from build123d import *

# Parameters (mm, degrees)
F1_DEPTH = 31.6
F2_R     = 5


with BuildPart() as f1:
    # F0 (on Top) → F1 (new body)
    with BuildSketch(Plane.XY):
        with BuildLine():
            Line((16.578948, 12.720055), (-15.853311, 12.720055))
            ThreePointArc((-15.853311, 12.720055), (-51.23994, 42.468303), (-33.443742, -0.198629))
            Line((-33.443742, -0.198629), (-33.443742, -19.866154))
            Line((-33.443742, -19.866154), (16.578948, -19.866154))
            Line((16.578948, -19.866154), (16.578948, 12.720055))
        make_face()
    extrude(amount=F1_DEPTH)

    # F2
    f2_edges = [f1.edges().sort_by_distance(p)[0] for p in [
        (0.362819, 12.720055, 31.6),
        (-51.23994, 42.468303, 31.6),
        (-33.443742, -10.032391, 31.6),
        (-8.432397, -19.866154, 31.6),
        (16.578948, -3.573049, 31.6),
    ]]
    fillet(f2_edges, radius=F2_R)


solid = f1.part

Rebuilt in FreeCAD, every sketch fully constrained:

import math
import FreeCAD as App
import Part
import Sketcher
Q = App.Units.Quantity


def edges_at(feature, points):
    """Names of the edges that pass closest to the given points."""
    edges = feature.Shape.Edges
    near = lambda p: min(range(len(edges)), key=lambda i: edges[i].distToShape(Part.Vertex(*p))[0])
    return sorted({f"Edge{near(p) + 1}" for p in points})

doc = App.newDocument("Part")
body = doc.addObject("PartDesign::Body", "Body")

sketch1 = body.newObject("Sketcher::SketchObject", "Sketch")
sketch1.AttachmentSupport = (doc.getObject("XY_Plane"), [""])
sketch1.MapMode = "FlatFace"
sketch1.addGeometry([
    Part.LineSegment(App.Vector(17, 13, 0), App.Vector(-16, 13, 0)),
    Part.ArcOfCircle(Part.Circle(App.Vector(-37, 23, 0), App.Vector(0, 0, 1), 24), math.radians(-26), math.radians(279)),
    Part.LineSegment(App.Vector(-33, 0, 0), App.Vector(-33, -20, 0)),
    Part.LineSegment(App.Vector(-33, -20, 0), App.Vector(17, -20, 0)),
    Part.LineSegment(App.Vector(17, -20, 0), App.Vector(17, 13, 0)),
], False)
sketch1.addConstraint([
    Sketcher.Constraint("Coincident", 0, 2, 1, 1),
    Sketcher.Constraint("Coincident", 1, 2, 2, 1),
    Sketcher.Constraint("Coincident", 2, 2, 3, 1),
    Sketcher.Constraint("Coincident", 3, 2, 4, 1),
    Sketcher.Constraint("Coincident", 4, 2, 0, 1),
    Sketcher.Constraint("Horizontal", 0),
    Sketcher.Constraint("Vertical", 2),
    Sketcher.Constraint("Horizontal", 3),
    Sketcher.Constraint("Vertical", 4),
    Sketcher.Constraint("Radius", 1, Q("23.786955 mm")),
    Sketcher.Constraint("DistanceX", 0, 2, 0, 1, Q("32.432259 mm")),
    Sketcher.Constraint("DistanceX", 3, 1, 3, 2, Q("50.02269 mm")),
    Sketcher.Constraint("DistanceY", 4, 1, 4, 2, Q("32.586209 mm")),
    Sketcher.Constraint("DistanceX", 1, 3, 0, 2, Q("21.3064 mm")),
    Sketcher.Constraint("DistanceX", 1, 3, -1, 1, Q("37.159711 mm")),
    Sketcher.Constraint("DistanceY", -1, 1, 1, 3, Q("23.296282 mm")),
])
pad1 = body.newObject("PartDesign::Pad", "Pad")
pad1.Profile = sketch1
pad1.Length = 31.6
doc.recompute()

fillet = body.newObject("PartDesign::Fillet", "Fillet")
fillet.Base = (pad1, edges_at(pad1, [
    (0.363, 12.72, 31.6),
    (-51.24, 42.468, 31.6),
    (-33.444, -10.032, 31.6),
    (-8.432, -19.866, 31.6),
    (16.579, -3.573, 31.6),
]))
fillet.Radius = 5

doc.recompute()
